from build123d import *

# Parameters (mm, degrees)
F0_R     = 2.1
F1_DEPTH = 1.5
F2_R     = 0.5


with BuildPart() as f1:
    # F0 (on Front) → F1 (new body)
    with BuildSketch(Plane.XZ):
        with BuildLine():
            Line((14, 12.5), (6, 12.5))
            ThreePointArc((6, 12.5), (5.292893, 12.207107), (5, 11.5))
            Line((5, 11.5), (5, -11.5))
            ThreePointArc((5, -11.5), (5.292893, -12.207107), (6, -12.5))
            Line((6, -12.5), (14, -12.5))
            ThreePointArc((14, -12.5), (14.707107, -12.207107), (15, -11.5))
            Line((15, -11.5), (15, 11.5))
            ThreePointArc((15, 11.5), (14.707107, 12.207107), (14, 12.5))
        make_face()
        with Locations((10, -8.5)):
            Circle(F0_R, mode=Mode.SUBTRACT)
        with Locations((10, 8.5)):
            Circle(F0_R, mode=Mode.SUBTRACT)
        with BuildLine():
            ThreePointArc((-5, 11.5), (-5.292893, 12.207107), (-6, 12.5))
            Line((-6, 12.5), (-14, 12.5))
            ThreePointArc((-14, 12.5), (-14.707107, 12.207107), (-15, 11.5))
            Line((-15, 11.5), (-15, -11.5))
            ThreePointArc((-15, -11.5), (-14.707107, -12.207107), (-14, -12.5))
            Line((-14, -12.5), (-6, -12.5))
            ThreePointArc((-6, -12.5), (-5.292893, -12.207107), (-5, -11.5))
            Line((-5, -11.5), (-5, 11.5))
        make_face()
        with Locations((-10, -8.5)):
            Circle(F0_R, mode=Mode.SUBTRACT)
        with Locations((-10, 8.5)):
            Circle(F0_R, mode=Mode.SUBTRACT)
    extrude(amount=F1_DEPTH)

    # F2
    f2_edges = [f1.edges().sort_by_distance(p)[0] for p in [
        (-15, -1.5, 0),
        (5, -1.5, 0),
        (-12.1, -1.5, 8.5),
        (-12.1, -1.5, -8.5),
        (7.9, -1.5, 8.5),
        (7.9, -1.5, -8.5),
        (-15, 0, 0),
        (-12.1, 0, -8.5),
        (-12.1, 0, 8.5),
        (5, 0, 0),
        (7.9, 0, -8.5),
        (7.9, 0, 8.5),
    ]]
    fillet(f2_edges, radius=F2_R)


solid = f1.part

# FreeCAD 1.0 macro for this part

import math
import FreeCAD as App
import Part
import Sketcher
from FreeCAD import Vector
Q = App.Units.Quantity


def edges_at(feature, points):
    """Names of the edges that pass closest to the given points."""
    edges = feature.Shape.Edges
    near = lambda p: min(range(len(edges)), key=lambda i: edges[i].distToShape(Part.Vertex(*p))[0])
    return sorted({f"Edge{near(p) + 1}" for p in points})

doc = App.newDocument("Part")
params = doc.addObject("Spreadsheet::Sheet", "Params")
for row, (alias, value) in enumerate([
    ("sketch1_radius", "0.999999 mm"),
    ("sketch1_diameter", "4.2 mm"),
    ("sketch1_width", "8 mm"),
    ("sketch1_height", "23 mm"),
    ("pad1_length", "1.5 mm"),
    ("fillet_radius", "0.5 mm"),
], start=1):
    params.set(f"A{row}", alias)
    params.set(f"B{row}", "=" + value)
    params.setAlias(f"B{row}", alias)

body = doc.addObject("PartDesign::Body", "Body")
body.AllowCompound = True

sketch1 = body.newObject("Sketcher::SketchObject", "Sketch")
sketch1.AttachmentSupport = (doc.getObject("XZ_Plane"), [""])
sketch1.MapMode = "FlatFace"
sketch1.addGeometry(Part.LineSegment(Vector(14, 12.5, 0), Vector(6, 12.5, 0)), False)
sketch1.addGeometry(Part.ArcOfCircle(Part.Circle(Vector(6, 11.5, 0), Vector(0, 0, 1), 1), math.radians(90), math.radians(180)), False)
sketch1.addGeometry(Part.LineSegment(Vector(5, 11.5, 0), Vector(5, -11.5, 0)), False)
sketch1.addGeometry(Part.ArcOfCircle(Part.Circle(Vector(6, -11.5, 0), Vector(0, 0, 1), 1), math.radians(180), math.radians(270)), False)
sketch1.addGeometry(Part.LineSegment(Vector(6, -12.5, 0), Vector(14, -12.5, 0)), False)
sketch1.addGeometry(Part.ArcOfCircle(Part.Circle(Vector(14, -11.5, 0), Vector(0, 0, 1), 1), math.radians(-90), math.radians(0)), False)
sketch1.addGeometry(Part.LineSegment(Vector(15, -11.5, 0), Vector(15, 11.5, 0)), False)
sketch1.addGeometry(Part.ArcOfCircle(Part.Circle(Vector(14, 11.5, 0), Vector(0, 0, 1), 1), math.radians(0), math.radians(90)), False)
sketch1.addGeometry(Part.Circle(Vector(10, -8.5, 0), Vector(0, 0, 1), 2.1), False)
sketch1.addGeometry(Part.Circle(Vector(10, 8.5, 0), Vector(0, 0, 1), 2.1), False)
sketch1.addGeometry(Part.ArcOfCircle(Part.Circle(Vector(-6, 11.5, 0), Vector(0, 0, 1), 1), math.radians(0), math.radians(90)), False)
sketch1.addGeometry(Part.LineSegment(Vector(-6, 12.5, 0), Vector(-14, 12.5, 0)), False)
sketch1.addGeometry(Part.ArcOfCircle(Part.Circle(Vector(-14, 11.5, 0), Vector(0, 0, 1), 1), math.radians(90), math.radians(180)), False)
sketch1.addGeometry(Part.LineSegment(Vector(-15, 11.5, 0), Vector(-15, -11.5, 0)), False)
sketch1.addGeometry(Part.ArcOfCircle(Part.Circle(Vector(-14, -11.5, 0), Vector(0, 0, 1), 1), math.radians(180), math.radians(270)), False)
sketch1.addGeometry(Part.LineSegment(Vector(-14, -12.5, 0), Vector(-6, -12.5, 0)), False)
sketch1.addGeometry(Part.ArcOfCircle(Part.Circle(Vector(-6, -11.5, 0), Vector(0, 0, 1), 1), math.radians(-90), math.radians(0)), False)
sketch1.addGeometry(Part.LineSegment(Vector(-5, -11.5, 0), Vector(-5, 11.5, 0)), False)
sketch1.addGeometry(Part.Circle(Vector(-10, -8.5, 0), Vector(0, 0, 1), 2.1), False)
sketch1.addGeometry(Part.Circle(Vector(-10, 8.5, 0), Vector(0, 0, 1), 2.1), False)
sketch1.addConstraint(Sketcher.Constraint("Tangent", 0, 2, 1, 1))
sketch1.addConstraint(Sketcher.Constraint("Tangent", 1, 2, 2, 1))
sketch1.addConstraint(Sketcher.Constraint("Tangent", 2, 2, 3, 1))
sketch1.addConstraint(Sketcher.Constraint("Tangent", 3, 2, 4, 1))
sketch1.addConstraint(Sketcher.Constraint("Tangent", 4, 2, 5, 1))
sketch1.addConstraint(Sketcher.Constraint("Tangent", 5, 2, 6, 1))
sketch1.addConstraint(Sketcher.Constraint("Tangent", 6, 2, 7, 1))
sketch1.addConstraint(Sketcher.Constraint("Tangent", 7, 2, 0, 1))
sketch1.addConstraint(Sketcher.Constraint("Tangent", 10, 2, 11, 1))
sketch1.addConstraint(Sketcher.Constraint("Tangent", 11, 2, 12, 1))
sketch1.addConstraint(Sketcher.Constraint("Tangent", 12, 2, 13, 1))
sketch1.addConstraint(Sketcher.Constraint("Tangent", 13, 2, 14, 1))
sketch1.addConstraint(Sketcher.Constraint("Tangent", 14, 2, 15, 1))
sketch1.addConstraint(Sketcher.Constraint("Tangent", 15, 2, 16, 1))
sketch1.addConstraint(Sketcher.Constraint("Tangent", 16, 2, 17, 1))
sketch1.addConstraint(Sketcher.Constraint("Tangent", 17, 2, 10, 1))
sketch1.addConstraint(Sketcher.Constraint("Horizontal", 0))
sketch1.addConstraint(Sketcher.Constraint("Vertical", 2))
sketch1.addConstraint(Sketcher.Constraint("Horizontal", 4))
sketch1.addConstraint(Sketcher.Constraint("Vertical", 6))
sketch1.addConstraint(Sketcher.Constraint("Horizontal", 11))
sketch1.addConstraint(Sketcher.Constraint("Vertical", 13))
sketch1.addConstraint(Sketcher.Constraint("Horizontal", 15))
sketch1.addConstraint(Sketcher.Constraint("Vertical", 17))
sketch1.addConstraint(Sketcher.Constraint("Equal", 1, 3))
sketch1.addConstraint(Sketcher.Constraint("Equal", 3, 5))
sketch1.addConstraint(Sketcher.Constraint("Equal", 5, 7))
sketch1.addConstraint(Sketcher.Constraint("Equal", 8, 9))
sketch1.addConstraint(Sketcher.Constraint("Equal", 7, 10))
sketch1.addConstraint(Sketcher.Constraint("Equal", 10, 12))
sketch1.addConstraint(Sketcher.Constraint("Equal", 12, 14))
sketch1.addConstraint(Sketcher.Constraint("Equal", 14, 16))
sketch1.addConstraint(Sketcher.Constraint("Equal", 9, 18))
sketch1.addConstraint(Sketcher.Constraint("Equal", 18, 19))
sketch1.addConstraint(Sketcher.Constraint("Symmetric", 3, 3, 10, 3, -1, 1))
sketch1.addConstraint(Sketcher.Constraint("Symmetric", 7, 3, 14, 3, -1, 1))
sketch1.addConstraint(Sketcher.Constraint("Symmetric", 9, 3, 18, 3, -1, 1))
sketch1.addConstraint(Sketcher.Constraint("Symmetric", 8, 3, 19, 3, -1, 1))
sketch1.addConstraint(Sketcher.Constraint("Symmetric", 8, 3, 18, 3, -2))
sketch1.addConstraint(Sketcher.Constraint("Horizontal", 7, 3, 10, 3))
sketch1.addConstraint(Sketcher.Constraint("Radius", 1, Q("0.999999 mm")))
sketch1.addConstraint(Sketcher.Constraint("Diameter", 8, Q("4.2 mm")))
sketch1.addConstraint(Sketcher.Constraint("DistanceX", 0, 2, 0, 1, Q("8 mm")))
sketch1.addConstraint(Sketcher.Constraint("DistanceY", 2, 2, 2, 1, Q("23 mm")))
sketch1.addConstraint(Sketcher.Constraint("DistanceX", -1, 1, 1, 3, Q("5.999999 mm")))
sketch1.addConstraint(Sketcher.Constraint("DistanceX", -1, 1, 8, 3, Q("10 mm")))
sketch1.addConstraint(Sketcher.Constraint("DistanceY", 3, 3, 8, 3, Q("3.000001 mm")))
sketch1.setExpression("Constraints[40]", "Params.sketch1_radius")
sketch1.setExpression("Constraints[41]", "Params.sketch1_diameter")
sketch1.setExpression("Constraints[42]", "Params.sketch1_width")
sketch1.setExpression("Constraints[43]", "Params.sketch1_height")
pad1 = body.newObject("PartDesign::Pad", "Pad")
pad1.Profile = sketch1
pad1.setExpression("Length", "Params.pad1_length")
doc.recompute()

fillet = body.newObject("PartDesign::Fillet", "Fillet")
fillet.Base = (pad1, edges_at(pad1, [
    (-15, -1.5, 0),
    (5, -1.5, 0),
    (-12.1, -1.5, 8.5),
    (-12.1, -1.5, -8.5),
    (7.9, -1.5, 8.5),
    (7.9, -1.5, -8.5),
    (-15, 0, 0),
    (-12.1, 0, -8.5),
    (-12.1, 0, 8.5),
    (5, 0, 0),
    (7.9, 0, -8.5),
    (7.9, 0, 8.5),
]))
fillet.setExpression("Radius", "Params.fillet_radius")

doc.recompute()
